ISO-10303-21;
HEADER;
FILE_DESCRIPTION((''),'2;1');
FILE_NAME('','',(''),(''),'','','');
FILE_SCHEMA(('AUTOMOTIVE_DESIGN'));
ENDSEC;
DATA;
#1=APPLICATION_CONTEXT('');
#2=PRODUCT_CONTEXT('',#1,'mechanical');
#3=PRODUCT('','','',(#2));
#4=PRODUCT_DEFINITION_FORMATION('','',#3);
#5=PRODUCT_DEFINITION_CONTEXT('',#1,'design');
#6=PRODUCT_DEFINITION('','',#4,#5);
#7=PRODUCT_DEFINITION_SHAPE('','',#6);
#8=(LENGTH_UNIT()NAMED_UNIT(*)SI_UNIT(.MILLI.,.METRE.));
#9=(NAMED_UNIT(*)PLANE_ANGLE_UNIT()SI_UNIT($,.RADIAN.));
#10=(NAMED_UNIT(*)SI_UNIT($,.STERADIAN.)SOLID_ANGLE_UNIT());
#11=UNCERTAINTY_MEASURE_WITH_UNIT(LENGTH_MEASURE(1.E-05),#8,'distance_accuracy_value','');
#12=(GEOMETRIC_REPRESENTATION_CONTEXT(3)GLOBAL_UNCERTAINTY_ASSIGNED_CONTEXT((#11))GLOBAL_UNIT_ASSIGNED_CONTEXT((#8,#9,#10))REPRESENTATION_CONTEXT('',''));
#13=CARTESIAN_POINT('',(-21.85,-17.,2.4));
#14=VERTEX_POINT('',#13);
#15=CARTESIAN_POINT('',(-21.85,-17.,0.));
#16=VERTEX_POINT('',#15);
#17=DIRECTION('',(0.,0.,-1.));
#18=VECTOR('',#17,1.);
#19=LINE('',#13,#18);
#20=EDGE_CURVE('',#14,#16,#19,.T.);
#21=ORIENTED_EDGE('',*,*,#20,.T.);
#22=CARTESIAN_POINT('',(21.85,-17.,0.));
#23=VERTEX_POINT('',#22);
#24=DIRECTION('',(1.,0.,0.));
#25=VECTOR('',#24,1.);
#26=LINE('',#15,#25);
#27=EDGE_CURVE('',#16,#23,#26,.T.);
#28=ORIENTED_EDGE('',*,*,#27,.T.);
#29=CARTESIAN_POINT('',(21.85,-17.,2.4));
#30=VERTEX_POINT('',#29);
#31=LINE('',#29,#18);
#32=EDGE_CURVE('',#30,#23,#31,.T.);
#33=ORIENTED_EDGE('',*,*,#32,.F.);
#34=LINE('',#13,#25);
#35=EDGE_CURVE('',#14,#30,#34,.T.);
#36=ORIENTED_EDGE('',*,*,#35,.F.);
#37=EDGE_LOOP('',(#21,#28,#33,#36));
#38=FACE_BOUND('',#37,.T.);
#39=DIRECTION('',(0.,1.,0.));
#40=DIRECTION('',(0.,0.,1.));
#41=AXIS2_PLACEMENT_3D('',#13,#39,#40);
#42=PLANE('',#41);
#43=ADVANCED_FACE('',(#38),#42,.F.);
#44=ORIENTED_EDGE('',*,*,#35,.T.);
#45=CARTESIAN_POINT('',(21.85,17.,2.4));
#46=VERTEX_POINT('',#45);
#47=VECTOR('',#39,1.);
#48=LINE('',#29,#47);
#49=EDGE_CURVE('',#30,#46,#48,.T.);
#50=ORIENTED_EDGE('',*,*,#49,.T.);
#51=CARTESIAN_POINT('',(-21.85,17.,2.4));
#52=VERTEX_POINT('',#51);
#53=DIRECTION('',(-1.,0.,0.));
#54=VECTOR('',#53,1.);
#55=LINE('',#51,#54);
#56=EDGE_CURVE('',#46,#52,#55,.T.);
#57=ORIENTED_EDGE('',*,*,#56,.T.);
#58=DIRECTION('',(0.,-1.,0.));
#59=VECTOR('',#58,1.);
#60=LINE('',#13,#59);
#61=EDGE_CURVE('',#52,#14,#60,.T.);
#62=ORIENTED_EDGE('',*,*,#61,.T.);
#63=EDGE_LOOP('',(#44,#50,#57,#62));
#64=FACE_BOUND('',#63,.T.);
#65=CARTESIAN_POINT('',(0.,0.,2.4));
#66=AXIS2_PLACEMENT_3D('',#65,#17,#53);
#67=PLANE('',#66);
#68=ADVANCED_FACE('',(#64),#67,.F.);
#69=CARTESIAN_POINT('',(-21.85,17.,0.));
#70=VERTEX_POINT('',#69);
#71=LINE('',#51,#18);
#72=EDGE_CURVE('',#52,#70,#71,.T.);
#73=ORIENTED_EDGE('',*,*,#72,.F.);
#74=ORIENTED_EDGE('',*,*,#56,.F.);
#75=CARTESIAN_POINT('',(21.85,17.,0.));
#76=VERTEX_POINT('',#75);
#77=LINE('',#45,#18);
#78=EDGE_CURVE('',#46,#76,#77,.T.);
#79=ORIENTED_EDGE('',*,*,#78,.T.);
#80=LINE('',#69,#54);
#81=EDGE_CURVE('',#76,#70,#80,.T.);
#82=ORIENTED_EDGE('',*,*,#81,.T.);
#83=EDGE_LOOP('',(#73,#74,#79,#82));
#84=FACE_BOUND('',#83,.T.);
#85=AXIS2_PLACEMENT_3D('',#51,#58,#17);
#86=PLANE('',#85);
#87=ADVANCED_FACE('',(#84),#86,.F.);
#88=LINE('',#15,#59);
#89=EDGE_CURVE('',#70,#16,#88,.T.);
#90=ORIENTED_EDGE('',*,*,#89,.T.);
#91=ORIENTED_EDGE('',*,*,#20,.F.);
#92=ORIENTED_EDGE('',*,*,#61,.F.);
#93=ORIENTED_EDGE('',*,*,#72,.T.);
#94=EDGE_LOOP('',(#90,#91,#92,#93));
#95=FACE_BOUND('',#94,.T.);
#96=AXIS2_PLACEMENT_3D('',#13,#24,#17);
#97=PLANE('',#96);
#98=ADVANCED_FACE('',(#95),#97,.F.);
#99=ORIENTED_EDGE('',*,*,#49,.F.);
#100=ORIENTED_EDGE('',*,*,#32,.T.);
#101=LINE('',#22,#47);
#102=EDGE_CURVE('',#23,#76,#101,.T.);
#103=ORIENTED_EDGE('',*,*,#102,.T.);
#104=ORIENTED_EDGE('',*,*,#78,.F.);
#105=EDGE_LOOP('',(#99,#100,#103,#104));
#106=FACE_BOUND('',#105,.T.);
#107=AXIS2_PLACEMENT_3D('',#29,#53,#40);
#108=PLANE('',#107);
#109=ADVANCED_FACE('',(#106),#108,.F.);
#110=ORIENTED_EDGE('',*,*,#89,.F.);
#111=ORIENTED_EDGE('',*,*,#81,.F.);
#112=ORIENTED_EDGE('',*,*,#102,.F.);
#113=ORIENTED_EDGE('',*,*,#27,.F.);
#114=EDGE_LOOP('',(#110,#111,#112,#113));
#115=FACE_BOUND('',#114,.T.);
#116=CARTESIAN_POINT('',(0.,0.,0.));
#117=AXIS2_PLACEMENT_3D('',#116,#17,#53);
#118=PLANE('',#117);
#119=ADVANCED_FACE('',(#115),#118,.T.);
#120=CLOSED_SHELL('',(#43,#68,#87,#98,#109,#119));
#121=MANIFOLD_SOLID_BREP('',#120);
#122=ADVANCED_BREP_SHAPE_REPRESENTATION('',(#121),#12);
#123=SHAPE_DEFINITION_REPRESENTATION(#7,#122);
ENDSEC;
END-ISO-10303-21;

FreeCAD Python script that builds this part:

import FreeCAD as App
import Part
import Sketcher
Q = App.Units.Quantity


def add_polygon(sketch, points):
    """Adds a closed chain of lines whose ends are joined by coincident constraints."""
    first, n = sketch.GeometryCount, len(points)
    for a, b in zip(points, points[1:] + points[:1]):
        sketch.addGeometry(Part.LineSegment(App.Vector(*a, 0), App.Vector(*b, 0)), False)
    for i in range(n):
        sketch.addConstraint(Sketcher.Constraint("Coincident", first + i, 2, first + (i + 1) % n, 1))

doc = App.newDocument("Part")
body = doc.addObject("PartDesign::Body", "Body")

# Sketch on XY plane
sketch1 = body.newObject("Sketcher::SketchObject", "Sketch")
sketch1.AttachmentSupport = (doc.getObject("XY_Plane"), [""])
sketch1.MapMode = "FlatFace"
add_polygon(sketch1, [(-21.85, 17), (-21.85, -17), (21.85, -17), (21.85, 17)])  # lines 0-3
sketch1.addConstraint(Sketcher.Constraint("Vertical", 0))
sketch1.addConstraint(Sketcher.Constraint("Horizontal", 1))
sketch1.addConstraint(Sketcher.Constraint("Vertical", 2))
sketch1.addConstraint(Sketcher.Constraint("Horizontal", 3))
sketch1.addConstraint(Sketcher.Constraint("Symmetric", 0, 2, 2, 2, -1, 1))
sketch1.addConstraint(Sketcher.Constraint("DistanceY", 0, 2, 0, 1, Q("34 mm")))
sketch1.addConstraint(Sketcher.Constraint("DistanceX", 1, 1, 1, 2, Q("43.7 mm")))
pad1 = body.newObject("PartDesign::Pad", "Pad")
pad1.Profile = sketch1
pad1.Length = 2.4

doc.recompute()
